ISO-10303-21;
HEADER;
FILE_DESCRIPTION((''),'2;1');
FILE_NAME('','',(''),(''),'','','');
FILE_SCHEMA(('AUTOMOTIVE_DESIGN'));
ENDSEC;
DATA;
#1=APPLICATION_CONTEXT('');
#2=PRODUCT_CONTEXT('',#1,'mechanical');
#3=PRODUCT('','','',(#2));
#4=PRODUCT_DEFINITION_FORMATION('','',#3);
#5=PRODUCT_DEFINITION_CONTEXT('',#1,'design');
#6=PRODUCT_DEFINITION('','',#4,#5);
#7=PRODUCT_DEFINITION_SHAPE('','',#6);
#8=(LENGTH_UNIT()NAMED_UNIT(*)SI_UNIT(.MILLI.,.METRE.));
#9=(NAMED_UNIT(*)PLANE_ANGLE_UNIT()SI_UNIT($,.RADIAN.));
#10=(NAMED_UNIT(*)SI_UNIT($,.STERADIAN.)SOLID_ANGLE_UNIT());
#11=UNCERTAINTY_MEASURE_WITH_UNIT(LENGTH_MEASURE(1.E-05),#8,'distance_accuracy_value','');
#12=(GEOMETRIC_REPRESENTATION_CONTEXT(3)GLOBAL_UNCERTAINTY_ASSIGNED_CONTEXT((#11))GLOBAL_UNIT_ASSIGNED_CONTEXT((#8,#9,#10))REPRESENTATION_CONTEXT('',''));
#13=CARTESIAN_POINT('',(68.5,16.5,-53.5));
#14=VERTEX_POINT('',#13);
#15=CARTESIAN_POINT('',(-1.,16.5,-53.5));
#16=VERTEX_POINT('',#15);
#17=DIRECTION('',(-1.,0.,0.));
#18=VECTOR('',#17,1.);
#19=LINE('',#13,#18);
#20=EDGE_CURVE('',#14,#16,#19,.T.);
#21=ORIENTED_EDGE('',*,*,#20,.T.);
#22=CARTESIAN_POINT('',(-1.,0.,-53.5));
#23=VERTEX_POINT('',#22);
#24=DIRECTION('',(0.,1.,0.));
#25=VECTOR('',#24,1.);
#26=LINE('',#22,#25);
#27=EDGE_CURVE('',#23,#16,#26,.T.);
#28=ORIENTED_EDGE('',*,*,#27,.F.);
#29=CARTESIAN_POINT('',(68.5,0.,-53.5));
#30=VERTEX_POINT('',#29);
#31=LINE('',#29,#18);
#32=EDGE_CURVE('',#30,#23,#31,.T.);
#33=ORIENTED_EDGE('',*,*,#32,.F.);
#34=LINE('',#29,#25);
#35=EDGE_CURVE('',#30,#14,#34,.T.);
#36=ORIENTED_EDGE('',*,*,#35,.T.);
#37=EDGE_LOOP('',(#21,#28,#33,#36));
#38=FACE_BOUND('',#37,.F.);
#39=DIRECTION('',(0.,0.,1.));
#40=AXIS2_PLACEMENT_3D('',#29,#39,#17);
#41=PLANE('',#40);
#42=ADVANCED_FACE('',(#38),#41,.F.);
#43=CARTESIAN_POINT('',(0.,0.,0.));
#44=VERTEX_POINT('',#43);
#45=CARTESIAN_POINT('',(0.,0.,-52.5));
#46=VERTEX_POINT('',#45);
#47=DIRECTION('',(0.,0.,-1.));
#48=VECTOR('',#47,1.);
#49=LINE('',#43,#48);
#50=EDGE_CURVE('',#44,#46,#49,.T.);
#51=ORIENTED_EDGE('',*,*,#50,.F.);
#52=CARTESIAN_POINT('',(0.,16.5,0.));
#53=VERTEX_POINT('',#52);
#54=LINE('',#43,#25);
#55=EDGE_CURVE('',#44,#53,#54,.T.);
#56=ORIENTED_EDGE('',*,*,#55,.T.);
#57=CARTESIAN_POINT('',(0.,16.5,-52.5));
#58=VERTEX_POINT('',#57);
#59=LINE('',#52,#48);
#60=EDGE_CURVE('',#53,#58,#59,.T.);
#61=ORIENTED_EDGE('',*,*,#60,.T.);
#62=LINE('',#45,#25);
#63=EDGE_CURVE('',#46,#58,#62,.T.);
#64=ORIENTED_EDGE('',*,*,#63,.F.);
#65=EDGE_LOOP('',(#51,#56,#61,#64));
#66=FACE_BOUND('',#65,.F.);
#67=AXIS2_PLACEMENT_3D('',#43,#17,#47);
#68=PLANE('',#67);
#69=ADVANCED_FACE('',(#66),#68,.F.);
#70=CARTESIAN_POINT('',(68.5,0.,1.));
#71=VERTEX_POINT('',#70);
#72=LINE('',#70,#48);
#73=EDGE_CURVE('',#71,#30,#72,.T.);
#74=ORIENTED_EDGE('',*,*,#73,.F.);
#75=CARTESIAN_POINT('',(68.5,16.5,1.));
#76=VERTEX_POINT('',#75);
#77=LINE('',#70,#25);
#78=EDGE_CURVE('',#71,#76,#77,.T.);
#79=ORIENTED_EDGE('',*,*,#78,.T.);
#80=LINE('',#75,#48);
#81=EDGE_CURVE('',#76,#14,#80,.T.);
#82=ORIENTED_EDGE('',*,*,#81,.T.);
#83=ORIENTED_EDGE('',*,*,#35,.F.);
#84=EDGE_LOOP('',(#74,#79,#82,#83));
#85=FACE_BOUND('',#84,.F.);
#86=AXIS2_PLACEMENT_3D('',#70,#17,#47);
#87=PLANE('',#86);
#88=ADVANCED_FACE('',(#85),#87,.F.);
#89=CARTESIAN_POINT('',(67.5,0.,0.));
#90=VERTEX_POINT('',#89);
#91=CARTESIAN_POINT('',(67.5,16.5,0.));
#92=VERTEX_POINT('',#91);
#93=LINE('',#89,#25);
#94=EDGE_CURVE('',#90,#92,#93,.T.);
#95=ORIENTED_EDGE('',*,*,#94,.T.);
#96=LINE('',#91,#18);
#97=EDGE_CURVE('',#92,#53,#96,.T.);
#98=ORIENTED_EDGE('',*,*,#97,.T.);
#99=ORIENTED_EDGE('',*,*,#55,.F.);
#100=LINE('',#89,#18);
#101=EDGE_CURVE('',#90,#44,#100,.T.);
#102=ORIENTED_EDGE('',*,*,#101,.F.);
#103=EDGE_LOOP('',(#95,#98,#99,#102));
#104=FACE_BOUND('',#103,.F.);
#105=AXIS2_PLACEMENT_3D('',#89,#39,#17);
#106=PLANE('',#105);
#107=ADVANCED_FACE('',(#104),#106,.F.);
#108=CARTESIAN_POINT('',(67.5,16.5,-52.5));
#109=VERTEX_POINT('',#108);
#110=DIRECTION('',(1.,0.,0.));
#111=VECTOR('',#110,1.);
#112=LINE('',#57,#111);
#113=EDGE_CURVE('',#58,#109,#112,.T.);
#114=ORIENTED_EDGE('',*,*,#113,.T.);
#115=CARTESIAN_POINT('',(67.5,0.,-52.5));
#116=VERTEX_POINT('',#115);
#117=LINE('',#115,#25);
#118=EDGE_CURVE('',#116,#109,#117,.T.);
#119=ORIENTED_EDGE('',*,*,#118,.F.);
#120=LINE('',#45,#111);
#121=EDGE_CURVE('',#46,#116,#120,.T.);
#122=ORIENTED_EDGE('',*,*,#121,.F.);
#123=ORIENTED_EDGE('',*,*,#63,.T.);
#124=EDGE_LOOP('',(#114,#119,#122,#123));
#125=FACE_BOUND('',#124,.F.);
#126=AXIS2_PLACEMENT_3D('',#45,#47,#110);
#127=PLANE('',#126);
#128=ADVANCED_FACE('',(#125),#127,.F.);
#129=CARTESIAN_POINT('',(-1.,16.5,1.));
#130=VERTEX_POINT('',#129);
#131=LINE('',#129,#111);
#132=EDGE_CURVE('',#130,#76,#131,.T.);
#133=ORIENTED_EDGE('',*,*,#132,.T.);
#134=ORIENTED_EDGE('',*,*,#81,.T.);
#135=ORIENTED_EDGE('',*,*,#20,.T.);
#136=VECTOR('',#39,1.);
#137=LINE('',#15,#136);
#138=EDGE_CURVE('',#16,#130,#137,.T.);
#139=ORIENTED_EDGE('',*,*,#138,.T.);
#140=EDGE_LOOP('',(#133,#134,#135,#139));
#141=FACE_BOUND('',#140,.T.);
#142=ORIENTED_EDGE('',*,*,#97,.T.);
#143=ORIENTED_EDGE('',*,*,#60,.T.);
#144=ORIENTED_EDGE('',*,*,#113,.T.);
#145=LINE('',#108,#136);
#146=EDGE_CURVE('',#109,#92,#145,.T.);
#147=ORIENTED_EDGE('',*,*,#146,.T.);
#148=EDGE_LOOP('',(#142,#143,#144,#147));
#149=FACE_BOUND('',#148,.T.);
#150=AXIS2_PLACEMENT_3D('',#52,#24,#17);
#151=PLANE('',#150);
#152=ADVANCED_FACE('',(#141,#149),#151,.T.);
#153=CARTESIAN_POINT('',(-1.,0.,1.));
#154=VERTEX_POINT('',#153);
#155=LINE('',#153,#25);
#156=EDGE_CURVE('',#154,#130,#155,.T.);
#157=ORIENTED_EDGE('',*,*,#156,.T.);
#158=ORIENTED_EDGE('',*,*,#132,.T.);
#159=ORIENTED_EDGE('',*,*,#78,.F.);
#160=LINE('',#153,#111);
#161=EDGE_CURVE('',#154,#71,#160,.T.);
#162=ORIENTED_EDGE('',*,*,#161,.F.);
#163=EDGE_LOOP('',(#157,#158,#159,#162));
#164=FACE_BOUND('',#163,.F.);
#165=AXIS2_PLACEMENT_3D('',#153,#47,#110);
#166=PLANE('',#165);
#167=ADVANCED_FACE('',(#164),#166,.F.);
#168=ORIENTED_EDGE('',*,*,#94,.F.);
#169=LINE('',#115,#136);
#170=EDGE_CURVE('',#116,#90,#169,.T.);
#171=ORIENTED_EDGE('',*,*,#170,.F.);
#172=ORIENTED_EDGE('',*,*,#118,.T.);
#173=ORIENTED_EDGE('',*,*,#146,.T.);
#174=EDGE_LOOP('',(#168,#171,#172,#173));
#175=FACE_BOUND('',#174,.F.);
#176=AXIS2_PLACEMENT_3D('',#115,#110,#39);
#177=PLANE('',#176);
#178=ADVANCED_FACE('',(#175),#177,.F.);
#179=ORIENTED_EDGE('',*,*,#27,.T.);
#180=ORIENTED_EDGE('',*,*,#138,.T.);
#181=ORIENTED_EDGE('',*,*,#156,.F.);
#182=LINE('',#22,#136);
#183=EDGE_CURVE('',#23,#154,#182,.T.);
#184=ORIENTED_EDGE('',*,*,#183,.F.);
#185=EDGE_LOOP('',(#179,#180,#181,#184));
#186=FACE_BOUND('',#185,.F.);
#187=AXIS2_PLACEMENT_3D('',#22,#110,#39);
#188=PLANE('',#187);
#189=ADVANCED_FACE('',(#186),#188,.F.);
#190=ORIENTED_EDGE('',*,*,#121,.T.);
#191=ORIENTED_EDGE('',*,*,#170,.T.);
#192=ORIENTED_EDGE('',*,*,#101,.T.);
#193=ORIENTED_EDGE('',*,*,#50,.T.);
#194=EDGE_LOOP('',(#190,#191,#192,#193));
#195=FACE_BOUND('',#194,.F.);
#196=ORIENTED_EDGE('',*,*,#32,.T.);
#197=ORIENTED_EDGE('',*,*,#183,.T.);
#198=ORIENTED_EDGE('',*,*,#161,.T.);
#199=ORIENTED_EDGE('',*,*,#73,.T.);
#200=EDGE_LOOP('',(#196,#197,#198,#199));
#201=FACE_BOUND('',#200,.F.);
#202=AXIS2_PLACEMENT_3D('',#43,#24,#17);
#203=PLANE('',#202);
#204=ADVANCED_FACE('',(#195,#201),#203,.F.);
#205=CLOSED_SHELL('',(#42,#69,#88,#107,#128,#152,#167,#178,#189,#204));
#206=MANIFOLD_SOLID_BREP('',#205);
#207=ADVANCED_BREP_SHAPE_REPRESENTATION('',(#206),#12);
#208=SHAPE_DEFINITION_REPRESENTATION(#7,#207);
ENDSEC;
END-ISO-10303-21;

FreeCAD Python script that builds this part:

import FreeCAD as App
import Part
import Sketcher
from FreeCAD import Vector

doc = App.newDocument("Part")
body = doc.addObject("PartDesign::Body", "Body")

sketch1 = body.newObject("Sketcher::SketchObject", "Sketch")
sketch1.AttachmentSupport = (doc.getObject("XZ_Plane"), [""])
sketch1.MapMode = "FlatFace"
sketch1.addGeometry(Part.LineSegment(Vector(68.5, 1, 0), Vector(68.5, -53.5, 0)), False)
sketch1.addGeometry(Part.LineSegment(Vector(68.5, -53.5, 0), Vector(-1, -53.5, 0)), False)
sketch1.addGeometry(Part.LineSegment(Vector(-1, -53.5, 0), Vector(-1, 1, 0)), False)
sketch1.addGeometry(Part.LineSegment(Vector(-1, 1, 0), Vector(68.5, 1, 0)), False)
sketch1.addGeometry(Part.LineSegment(Vector(67.5, 0, 0), Vector(0, 0, 0)), False)
sketch1.addGeometry(Part.LineSegment(Vector(0, 0, 0), Vector(0, -52.5, 0)), False)
sketch1.addGeometry(Part.LineSegment(Vector(0, -52.5, 0), Vector(67.5, -52.5, 0)), False)
sketch1.addGeometry(Part.LineSegment(Vector(67.5, -52.5, 0), Vector(67.5, 0, 0)), False)
sketch1.addConstraint(Sketcher.Constraint("Coincident", 0, 2, 1, 1))
sketch1.addConstraint(Sketcher.Constraint("Coincident", 1, 2, 2, 1))
sketch1.addConstraint(Sketcher.Constraint("Coincident", 2, 2, 3, 1))
sketch1.addConstraint(Sketcher.Constraint("Coincident", 3, 2, 0, 1))
sketch1.addConstraint(Sketcher.Constraint("Coincident", 4, 2, 5, 1))
sketch1.addConstraint(Sketcher.Constraint("Coincident", 5, 2, 6, 1))
sketch1.addConstraint(Sketcher.Constraint("Coincident", 6, 2, 7, 1))
sketch1.addConstraint(Sketcher.Constraint("Coincident", 7, 2, 4, 1))
sketch1.addConstraint(Sketcher.Constraint("Vertical", 0))
sketch1.addConstraint(Sketcher.Constraint("Horizontal", 1))
sketch1.addConstraint(Sketcher.Constraint("Vertical", 2))
sketch1.addConstraint(Sketcher.Constraint("Horizontal", 3))
sketch1.addConstraint(Sketcher.Constraint("Horizontal", 4))
sketch1.addConstraint(Sketcher.Constraint("Vertical", 5))
sketch1.addConstraint(Sketcher.Constraint("Horizontal", 6))
sketch1.addConstraint(Sketcher.Constraint("Vertical", 7))
sketch1.addConstraint(Sketcher.Constraint("Coincident", 4, 2, -1, 1))
sketch1.addConstraint(Sketcher.Constraint("DistanceX", 4, 2, 4, 1, 67.5))
sketch1.addConstraint(Sketcher.Constraint("DistanceY", 5, 2, 5, 1, 52.5))
sketch1.addConstraint(Sketcher.Constraint("DistanceX", 1, 2, -1, 1, 1.0))
sketch1.addConstraint(Sketcher.Constraint("DistanceY", -1, 1, 2, 2, 1.0))
sketch1.addConstraint(Sketcher.Constraint("DistanceY", 1, 2, 5, 2, 1.0))
sketch1.addConstraint(Sketcher.Constraint("DistanceX", 6, 2, 0, 2, 1.0))
pad1 = body.newObject("PartDesign::Pad", "Pad")
pad1.Profile = sketch1
pad1.Length = 16.5
pad1.Reversed = True

doc.recompute()
